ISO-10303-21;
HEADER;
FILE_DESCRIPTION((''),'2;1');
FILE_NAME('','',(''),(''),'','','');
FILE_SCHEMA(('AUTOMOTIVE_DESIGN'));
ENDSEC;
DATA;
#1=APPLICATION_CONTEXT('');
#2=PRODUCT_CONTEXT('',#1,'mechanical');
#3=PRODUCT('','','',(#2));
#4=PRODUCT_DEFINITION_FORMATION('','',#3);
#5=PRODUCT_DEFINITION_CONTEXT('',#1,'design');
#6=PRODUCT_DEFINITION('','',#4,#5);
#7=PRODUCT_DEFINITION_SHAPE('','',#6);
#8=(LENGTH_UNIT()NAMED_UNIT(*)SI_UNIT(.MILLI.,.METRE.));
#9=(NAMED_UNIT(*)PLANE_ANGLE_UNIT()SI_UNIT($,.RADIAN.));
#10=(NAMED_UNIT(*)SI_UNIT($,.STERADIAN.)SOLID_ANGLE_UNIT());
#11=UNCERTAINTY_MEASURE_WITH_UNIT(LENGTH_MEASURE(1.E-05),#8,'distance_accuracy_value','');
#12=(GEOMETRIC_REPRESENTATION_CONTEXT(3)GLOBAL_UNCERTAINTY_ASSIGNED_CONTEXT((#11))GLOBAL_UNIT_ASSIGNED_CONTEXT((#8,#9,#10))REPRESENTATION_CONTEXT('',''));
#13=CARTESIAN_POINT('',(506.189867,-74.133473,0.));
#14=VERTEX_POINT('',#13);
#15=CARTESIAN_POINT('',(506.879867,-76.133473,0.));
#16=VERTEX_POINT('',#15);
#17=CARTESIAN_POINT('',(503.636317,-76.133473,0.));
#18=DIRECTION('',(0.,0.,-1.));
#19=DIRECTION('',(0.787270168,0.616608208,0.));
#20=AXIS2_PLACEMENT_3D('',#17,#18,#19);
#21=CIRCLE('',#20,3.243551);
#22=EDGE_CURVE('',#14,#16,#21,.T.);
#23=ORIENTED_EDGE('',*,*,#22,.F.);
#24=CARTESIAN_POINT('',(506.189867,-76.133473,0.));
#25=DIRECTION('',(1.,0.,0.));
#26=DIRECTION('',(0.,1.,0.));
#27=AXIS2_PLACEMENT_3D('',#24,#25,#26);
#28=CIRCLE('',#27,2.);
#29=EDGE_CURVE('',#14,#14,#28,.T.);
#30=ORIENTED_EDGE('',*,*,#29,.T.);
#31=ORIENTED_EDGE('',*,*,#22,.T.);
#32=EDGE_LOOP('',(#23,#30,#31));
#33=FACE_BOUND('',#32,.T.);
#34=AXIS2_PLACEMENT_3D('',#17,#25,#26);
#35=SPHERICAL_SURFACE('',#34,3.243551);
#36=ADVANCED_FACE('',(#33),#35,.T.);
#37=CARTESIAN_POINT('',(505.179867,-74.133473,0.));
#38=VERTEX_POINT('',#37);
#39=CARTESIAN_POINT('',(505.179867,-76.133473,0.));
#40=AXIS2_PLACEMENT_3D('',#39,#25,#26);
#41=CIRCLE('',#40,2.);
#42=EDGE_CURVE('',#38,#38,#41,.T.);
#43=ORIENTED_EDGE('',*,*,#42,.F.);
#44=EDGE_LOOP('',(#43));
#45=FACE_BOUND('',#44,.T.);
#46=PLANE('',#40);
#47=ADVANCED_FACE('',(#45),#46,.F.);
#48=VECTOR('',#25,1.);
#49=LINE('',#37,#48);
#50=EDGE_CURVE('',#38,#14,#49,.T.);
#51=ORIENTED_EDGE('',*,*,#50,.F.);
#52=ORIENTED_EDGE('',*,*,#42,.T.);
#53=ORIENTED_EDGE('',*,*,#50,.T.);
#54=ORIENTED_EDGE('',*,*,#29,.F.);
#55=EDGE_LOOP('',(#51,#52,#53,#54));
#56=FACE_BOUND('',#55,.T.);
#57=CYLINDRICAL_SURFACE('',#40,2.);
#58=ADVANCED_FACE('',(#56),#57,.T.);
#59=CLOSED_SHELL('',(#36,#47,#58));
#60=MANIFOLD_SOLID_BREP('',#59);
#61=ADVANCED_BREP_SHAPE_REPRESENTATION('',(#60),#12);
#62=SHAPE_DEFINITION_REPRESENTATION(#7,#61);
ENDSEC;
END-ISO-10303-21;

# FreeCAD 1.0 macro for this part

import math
import FreeCAD as App
import Part
import Sketcher
from FreeCAD import Vector
Q = App.Units.Quantity

doc = App.newDocument("Part")
body = doc.addObject("PartDesign::Body", "Body")

sketch1 = body.newObject("Sketcher::SketchObject", "Sketch")
sketch1.AttachmentSupport = (doc.getObject("XY_Plane"), [""])
sketch1.MapMode = "FlatFace"
sketch1.addGeometry(Part.LineSegment(Vector(505.2, -76.1, 0), Vector(506.9, -76.1, 0)), False)
sketch1.addGeometry(Part.ArcOfCircle(Part.Circle(Vector(503.6, -76.1, 0), Vector(0, 0, 1), 3.2), math.radians(0), math.radians(38)), False)
sketch1.addGeometry(Part.LineSegment(Vector(506.2, -74.1, 0), Vector(505.2, -74.1, 0)), False)
sketch1.addGeometry(Part.LineSegment(Vector(505.2, -74.1, 0), Vector(505.2, -76.1, 0)), False)
sketch1.addGeometry(Part.LineSegment(Vector(503.6, -76.1, 0), Vector(506.9, -76.1, 0)), True)
sketch1.addConstraint(Sketcher.Constraint("Coincident", 0, 2, 1, 1))
sketch1.addConstraint(Sketcher.Constraint("Coincident", 1, 2, 2, 1))
sketch1.addConstraint(Sketcher.Constraint("Coincident", 2, 2, 3, 1))
sketch1.addConstraint(Sketcher.Constraint("Coincident", 3, 2, 0, 1))
sketch1.addConstraint(Sketcher.Constraint("Horizontal", 0))
sketch1.addConstraint(Sketcher.Constraint("Horizontal", 2))
sketch1.addConstraint(Sketcher.Constraint("Vertical", 3))
sketch1.addConstraint(Sketcher.Constraint("Horizontal", 4))
sketch1.addConstraint(Sketcher.Constraint("Coincident", 4, 1, 1, 3))
sketch1.addConstraint(Sketcher.Constraint("Coincident", 4, 2, 0, 2))
sketch1.addConstraint(Sketcher.Constraint("DistanceY", 3, 2, 3, 1, Q("2 mm")))
sketch1.addConstraint(Sketcher.Constraint("DistanceX", 0, 1, 0, 2, Q("1.7 mm")))
sketch1.addConstraint(Sketcher.Constraint("DistanceX", 2, 2, 2, 1, Q("1.01 mm")))
sketch1.addConstraint(Sketcher.Constraint("DistanceX", -1, 1, 1, 3, Q("503.636317 mm")))
sketch1.addConstraint(Sketcher.Constraint("DistanceY", 1, 3, -1, 1, Q("76.133473 mm")))
revolution = body.newObject("PartDesign::Revolution", "Revolution")
revolution.Profile = sketch1
revolution.ReferenceAxis = (sketch1, ["Axis0"])
revolution.Angle = 360

doc.recompute()
